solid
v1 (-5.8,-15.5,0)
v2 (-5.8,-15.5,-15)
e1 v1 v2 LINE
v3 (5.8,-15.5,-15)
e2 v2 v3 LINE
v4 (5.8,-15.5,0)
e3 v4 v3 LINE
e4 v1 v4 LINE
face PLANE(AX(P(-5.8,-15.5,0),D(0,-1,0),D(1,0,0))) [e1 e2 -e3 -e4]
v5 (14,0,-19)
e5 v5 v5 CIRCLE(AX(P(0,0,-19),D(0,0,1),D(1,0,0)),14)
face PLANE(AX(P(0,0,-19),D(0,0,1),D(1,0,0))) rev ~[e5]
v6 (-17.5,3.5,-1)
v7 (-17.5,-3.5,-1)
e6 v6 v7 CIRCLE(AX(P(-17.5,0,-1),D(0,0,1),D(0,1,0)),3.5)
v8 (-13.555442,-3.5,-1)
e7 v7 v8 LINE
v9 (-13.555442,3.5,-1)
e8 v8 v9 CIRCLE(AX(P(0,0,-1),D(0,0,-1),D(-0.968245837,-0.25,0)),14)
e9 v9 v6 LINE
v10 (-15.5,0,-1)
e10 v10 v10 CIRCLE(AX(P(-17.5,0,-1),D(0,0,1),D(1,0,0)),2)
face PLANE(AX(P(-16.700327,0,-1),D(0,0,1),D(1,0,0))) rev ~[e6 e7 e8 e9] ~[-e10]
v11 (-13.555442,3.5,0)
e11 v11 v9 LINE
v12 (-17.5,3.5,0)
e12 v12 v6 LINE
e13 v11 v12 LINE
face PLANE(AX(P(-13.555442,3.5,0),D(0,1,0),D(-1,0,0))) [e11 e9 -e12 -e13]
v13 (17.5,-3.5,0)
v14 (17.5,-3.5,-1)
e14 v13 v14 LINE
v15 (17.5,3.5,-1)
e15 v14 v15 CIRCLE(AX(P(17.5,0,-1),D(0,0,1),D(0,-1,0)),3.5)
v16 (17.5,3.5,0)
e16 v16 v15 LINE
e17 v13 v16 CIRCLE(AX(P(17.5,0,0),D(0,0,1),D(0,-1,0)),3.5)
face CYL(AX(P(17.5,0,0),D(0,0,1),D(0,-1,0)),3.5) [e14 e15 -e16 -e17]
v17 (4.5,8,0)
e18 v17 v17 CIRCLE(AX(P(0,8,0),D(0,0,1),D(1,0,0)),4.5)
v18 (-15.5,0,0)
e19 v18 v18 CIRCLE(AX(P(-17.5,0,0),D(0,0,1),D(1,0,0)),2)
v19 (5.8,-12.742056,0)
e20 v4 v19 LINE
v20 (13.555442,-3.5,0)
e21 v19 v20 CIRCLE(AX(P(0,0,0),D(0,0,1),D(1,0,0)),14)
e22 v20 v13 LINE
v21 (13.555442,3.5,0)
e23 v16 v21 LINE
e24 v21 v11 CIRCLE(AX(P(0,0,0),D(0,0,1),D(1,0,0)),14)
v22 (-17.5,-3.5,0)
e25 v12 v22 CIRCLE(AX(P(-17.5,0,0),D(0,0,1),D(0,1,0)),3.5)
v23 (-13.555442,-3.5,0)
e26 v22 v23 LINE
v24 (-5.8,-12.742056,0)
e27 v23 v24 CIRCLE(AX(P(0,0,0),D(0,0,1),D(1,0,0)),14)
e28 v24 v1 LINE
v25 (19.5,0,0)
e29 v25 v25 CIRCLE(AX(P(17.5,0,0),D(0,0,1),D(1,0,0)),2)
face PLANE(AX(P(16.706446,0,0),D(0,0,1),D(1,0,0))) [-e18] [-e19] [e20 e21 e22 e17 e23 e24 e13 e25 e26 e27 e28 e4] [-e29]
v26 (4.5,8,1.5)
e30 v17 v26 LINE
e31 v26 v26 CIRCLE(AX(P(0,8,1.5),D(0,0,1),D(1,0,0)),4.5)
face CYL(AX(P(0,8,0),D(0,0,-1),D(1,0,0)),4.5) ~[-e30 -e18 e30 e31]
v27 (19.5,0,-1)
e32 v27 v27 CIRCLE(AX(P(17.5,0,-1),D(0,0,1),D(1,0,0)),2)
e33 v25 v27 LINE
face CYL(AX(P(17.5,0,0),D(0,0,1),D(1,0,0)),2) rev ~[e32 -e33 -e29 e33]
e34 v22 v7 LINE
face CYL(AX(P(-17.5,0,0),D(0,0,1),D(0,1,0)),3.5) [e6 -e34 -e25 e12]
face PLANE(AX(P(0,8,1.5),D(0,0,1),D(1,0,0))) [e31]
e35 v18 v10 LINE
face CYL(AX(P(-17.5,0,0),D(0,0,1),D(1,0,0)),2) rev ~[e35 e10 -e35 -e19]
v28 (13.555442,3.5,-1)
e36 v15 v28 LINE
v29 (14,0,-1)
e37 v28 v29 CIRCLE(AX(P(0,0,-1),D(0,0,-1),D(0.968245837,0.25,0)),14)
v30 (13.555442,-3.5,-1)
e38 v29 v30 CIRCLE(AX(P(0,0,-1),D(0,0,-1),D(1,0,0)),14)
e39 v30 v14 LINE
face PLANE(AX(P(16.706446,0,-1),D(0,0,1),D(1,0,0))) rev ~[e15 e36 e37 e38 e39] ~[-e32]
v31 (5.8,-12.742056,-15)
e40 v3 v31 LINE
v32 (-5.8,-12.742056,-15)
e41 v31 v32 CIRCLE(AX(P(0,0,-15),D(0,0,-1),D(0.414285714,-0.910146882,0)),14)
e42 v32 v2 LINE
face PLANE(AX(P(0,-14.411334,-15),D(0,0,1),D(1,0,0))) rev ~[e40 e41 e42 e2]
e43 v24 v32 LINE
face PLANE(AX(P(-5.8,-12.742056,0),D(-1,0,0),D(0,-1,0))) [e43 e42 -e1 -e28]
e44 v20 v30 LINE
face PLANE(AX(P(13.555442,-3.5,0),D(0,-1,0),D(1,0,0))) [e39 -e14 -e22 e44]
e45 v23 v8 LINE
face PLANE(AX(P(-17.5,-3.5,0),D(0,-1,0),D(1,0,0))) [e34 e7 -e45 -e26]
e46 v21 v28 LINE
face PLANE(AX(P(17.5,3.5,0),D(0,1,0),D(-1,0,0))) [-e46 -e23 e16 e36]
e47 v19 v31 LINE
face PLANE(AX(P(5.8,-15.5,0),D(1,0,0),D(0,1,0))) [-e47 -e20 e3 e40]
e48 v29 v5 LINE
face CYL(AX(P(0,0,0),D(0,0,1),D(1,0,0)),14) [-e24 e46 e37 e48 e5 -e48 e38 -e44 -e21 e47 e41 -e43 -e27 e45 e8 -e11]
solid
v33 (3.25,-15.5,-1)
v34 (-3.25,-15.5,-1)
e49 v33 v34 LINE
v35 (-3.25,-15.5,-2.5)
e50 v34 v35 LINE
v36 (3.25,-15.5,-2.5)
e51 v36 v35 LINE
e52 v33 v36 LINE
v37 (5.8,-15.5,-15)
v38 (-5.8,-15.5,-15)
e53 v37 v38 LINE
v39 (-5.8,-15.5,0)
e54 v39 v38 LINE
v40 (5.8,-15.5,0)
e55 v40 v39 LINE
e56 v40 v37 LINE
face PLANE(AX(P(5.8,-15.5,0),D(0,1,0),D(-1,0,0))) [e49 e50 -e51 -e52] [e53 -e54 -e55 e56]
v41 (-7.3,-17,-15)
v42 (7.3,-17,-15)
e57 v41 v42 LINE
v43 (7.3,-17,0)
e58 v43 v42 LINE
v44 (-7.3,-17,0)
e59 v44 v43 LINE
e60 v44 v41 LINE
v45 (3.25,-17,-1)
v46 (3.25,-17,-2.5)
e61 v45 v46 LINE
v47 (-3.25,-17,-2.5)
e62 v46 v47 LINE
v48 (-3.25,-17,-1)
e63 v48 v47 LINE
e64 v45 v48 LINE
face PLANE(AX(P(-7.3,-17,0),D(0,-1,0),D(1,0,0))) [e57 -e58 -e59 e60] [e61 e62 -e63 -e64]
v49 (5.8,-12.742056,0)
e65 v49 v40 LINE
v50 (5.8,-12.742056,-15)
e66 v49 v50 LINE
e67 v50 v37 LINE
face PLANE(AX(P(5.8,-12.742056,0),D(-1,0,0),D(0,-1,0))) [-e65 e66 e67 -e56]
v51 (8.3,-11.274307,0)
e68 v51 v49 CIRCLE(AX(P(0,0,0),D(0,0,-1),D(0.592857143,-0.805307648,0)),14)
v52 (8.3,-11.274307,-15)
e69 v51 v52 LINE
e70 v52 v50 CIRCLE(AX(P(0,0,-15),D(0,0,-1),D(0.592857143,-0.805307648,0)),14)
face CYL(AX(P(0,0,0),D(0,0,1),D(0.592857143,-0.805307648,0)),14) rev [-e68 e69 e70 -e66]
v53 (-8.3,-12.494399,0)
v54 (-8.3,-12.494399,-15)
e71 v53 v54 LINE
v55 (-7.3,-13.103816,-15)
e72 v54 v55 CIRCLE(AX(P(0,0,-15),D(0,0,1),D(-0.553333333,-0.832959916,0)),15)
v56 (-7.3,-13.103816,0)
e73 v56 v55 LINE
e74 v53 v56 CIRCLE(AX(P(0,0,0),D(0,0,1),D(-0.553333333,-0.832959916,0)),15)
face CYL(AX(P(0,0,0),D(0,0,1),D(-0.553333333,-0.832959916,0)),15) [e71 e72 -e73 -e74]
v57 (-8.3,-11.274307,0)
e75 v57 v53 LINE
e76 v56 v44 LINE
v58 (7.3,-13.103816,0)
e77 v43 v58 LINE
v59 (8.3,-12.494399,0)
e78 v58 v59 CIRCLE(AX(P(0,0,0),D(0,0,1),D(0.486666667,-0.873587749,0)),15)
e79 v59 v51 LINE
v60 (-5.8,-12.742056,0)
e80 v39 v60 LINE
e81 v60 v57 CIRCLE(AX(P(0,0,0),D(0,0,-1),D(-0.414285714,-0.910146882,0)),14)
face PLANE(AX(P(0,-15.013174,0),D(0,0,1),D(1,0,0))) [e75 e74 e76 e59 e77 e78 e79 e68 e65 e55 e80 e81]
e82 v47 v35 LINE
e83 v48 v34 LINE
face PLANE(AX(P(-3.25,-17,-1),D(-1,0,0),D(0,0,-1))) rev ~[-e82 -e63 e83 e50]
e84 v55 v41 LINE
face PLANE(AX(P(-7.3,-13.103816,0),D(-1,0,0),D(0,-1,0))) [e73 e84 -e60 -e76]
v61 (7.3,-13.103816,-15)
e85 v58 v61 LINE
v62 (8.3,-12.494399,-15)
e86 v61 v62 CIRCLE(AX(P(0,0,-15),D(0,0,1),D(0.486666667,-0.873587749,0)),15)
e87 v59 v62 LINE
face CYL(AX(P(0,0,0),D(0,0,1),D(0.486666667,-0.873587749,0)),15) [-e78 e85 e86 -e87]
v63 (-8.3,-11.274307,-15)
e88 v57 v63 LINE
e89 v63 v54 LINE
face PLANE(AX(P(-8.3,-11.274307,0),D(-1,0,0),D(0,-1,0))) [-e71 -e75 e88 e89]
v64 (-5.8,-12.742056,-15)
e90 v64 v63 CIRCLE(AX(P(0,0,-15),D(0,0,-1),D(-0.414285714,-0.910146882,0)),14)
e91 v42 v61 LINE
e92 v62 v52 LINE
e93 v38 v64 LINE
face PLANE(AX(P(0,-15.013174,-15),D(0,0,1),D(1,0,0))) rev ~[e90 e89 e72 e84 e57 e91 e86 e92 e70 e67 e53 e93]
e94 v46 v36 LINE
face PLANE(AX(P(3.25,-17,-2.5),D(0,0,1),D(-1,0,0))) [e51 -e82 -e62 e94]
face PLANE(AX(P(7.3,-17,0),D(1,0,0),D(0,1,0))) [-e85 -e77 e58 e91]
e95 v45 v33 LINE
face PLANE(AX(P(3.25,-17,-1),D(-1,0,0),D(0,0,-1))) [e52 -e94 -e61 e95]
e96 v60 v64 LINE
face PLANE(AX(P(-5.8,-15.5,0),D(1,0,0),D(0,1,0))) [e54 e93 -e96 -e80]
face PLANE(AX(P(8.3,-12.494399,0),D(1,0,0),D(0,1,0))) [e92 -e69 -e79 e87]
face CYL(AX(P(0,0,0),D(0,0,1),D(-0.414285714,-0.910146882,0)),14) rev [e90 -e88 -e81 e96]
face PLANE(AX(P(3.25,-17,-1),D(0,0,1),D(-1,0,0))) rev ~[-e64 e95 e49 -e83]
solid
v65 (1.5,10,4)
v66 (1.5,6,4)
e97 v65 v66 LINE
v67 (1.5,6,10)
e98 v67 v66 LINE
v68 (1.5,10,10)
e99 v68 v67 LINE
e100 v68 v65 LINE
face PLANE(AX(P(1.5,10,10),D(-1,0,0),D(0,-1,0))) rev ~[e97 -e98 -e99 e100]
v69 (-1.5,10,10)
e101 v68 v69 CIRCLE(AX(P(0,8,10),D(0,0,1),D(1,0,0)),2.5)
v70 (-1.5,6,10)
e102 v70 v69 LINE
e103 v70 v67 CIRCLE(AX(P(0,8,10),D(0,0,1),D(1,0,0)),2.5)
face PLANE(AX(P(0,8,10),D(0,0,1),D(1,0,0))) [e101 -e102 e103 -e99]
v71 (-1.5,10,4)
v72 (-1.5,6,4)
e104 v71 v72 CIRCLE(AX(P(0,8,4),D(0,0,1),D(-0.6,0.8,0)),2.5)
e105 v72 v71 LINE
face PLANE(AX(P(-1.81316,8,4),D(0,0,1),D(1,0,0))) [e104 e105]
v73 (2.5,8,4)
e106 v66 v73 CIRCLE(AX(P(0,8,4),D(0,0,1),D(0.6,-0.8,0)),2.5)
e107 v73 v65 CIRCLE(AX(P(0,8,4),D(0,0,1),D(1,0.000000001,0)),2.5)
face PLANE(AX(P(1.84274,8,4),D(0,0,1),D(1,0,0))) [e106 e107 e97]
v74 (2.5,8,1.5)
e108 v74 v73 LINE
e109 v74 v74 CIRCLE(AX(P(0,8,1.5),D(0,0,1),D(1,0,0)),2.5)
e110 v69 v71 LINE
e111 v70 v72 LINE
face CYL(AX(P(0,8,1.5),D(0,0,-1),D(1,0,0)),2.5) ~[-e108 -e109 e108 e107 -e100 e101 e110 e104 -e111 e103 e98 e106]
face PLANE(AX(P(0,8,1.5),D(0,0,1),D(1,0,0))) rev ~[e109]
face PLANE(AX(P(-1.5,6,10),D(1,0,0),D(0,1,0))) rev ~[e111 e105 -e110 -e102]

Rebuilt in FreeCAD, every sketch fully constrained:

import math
import FreeCAD as App
import Part
import Sketcher
from FreeCAD import Vector


def add_polygon(sketch, points):
    """Adds a closed chain of lines whose ends are joined by coincident constraints."""
    first, n = sketch.GeometryCount, len(points)
    for a, b in zip(points, points[1:] + points[:1]):
        sketch.addGeometry(Part.LineSegment(App.Vector(*a, 0), App.Vector(*b, 0)), False)
    for i in range(n):
        sketch.addConstraint(Sketcher.Constraint("Coincident", first + i, 2, first + (i + 1) % n, 1))

doc = App.newDocument("Part")
body = doc.addObject("PartDesign::Body", "Body")

# Sketch on XY plane
sketch1 = body.newObject("Sketcher::SketchObject", "Sketch")
sketch1.AttachmentSupport = (doc.getObject("XY_Plane"), [""])
sketch1.MapMode = "FlatFace"
sketch1.addGeometry(Part.Circle(Vector(0, 0, 0), Vector(0, 0, 1), 14), False)
sketch1.addConstraint(Sketcher.Constraint("Coincident", 0, 3, -1, 1))
sketch1.addConstraint(Sketcher.Constraint("Diameter", 0, 28.0))
pad1 = body.newObject("PartDesign::Pad", "Pad")
pad1.Profile = sketch1
pad1.Length = 19
pad1.Reversed = True

# Sketch on XY plane
sketch2 = body.newObject("Sketcher::SketchObject", "Sketch001")
sketch2.AttachmentSupport = (doc.getObject("XY_Plane"), [""])
sketch2.MapMode = "FlatFace"
sketch2.addGeometry(Part.LineSegment(Vector(-13.6, 3.5, 0), Vector(-17.5, 3.5, 0)), False)
sketch2.addGeometry(Part.ArcOfCircle(Part.Circle(Vector(-17.5, 0, 0), Vector(0, 0, 1), 3.5), math.radians(90), math.radians(270)), False)
sketch2.addGeometry(Part.LineSegment(Vector(-17.5, -3.5, 0), Vector(-13.6, -3.5, 0)), False)
sketch2.addGeometry(Part.ArcOfCircle(Part.Circle(Vector(0, 0, 0), Vector(0, 0, 1), 14), math.radians(166), math.radians(194)), False)
sketch2.addGeometry(Part.Circle(Vector(-17.5, 0, 0), Vector(0, 0, 1), 2), False)
sketch2.addGeometry(Part.LineSegment(Vector(17.5, 3.5, 0), Vector(13.6, 3.5, 0)), False)
sketch2.addGeometry(Part.ArcOfCircle(Part.Circle(Vector(0, 0, 0), Vector(0, 0, 1), 14), math.radians(0), math.radians(14.48)), False)
sketch2.addGeometry(Part.ArcOfCircle(Part.Circle(Vector(0, 0, 0), Vector(0, 0, 1), 14), math.radians(-14.48), math.radians(0)), False)
sketch2.addGeometry(Part.LineSegment(Vector(13.6, -3.5, 0), Vector(17.5, -3.5, 0)), False)
sketch2.addGeometry(Part.ArcOfCircle(Part.Circle(Vector(17.5, 0, 0), Vector(0, 0, 1), 3.5), math.radians(-90), math.radians(90)), False)
sketch2.addGeometry(Part.Circle(Vector(17.5, 0, 0), Vector(0, 0, 1), 2), False)
sketch2.addConstraint(Sketcher.Constraint("Tangent", 0, 2, 1, 1))
sketch2.addConstraint(Sketcher.Constraint("Tangent", 1, 2, 2, 1))
sketch2.addConstraint(Sketcher.Constraint("Coincident", 2, 2, 3, 2))
sketch2.addConstraint(Sketcher.Constraint("Coincident", 3, 1, 0, 1))
sketch2.addConstraint(Sketcher.Constraint("Coincident", 5, 2, 6, 2))
sketch2.addConstraint(Sketcher.Constraint("Tangent", 6, 1, 7, 2))
sketch2.addConstraint(Sketcher.Constraint("Coincident", 7, 1, 8, 1))
sketch2.addConstraint(Sketcher.Constraint("Tangent", 8, 2, 9, 1))
sketch2.addConstraint(Sketcher.Constraint("Tangent", 9, 2, 5, 1))
sketch2.addConstraint(Sketcher.Constraint("Horizontal", 0))
sketch2.addConstraint(Sketcher.Constraint("Horizontal", 2))
sketch2.addConstraint(Sketcher.Constraint("Horizontal", 5))
sketch2.addConstraint(Sketcher.Constraint("Horizontal", 8))
sketch2.addConstraint(Sketcher.Constraint("Coincident", 3, 3, -1, 1))
sketch2.addConstraint(Sketcher.Constraint("Coincident", 6, 3, -1, 1))
sketch2.addConstraint(Sketcher.Constraint("Coincident", 4, 3, 1, 3))
sketch2.addConstraint(Sketcher.Constraint("Coincident", 10, 3, 9, 3))
sketch2.addConstraint(Sketcher.Constraint("Equal", 3, 6))
sketch2.addConstraint(Sketcher.Constraint("Equal", 6, 7))
sketch2.addConstraint(Sketcher.Constraint("Equal", 1, 9))
sketch2.addConstraint(Sketcher.Constraint("Equal", 4, 10))
sketch2.addConstraint(Sketcher.Constraint("Symmetric", 1, 3, 9, 3, -1, 1))
sketch2.addConstraint(Sketcher.Constraint("PointOnObject", 1, 3, -1))
sketch2.addConstraint(Sketcher.Constraint("PointOnObject", 6, 1, -1))
sketch2.addConstraint(Sketcher.Constraint("Diameter", 4, 4.0))
sketch2.addConstraint(Sketcher.Constraint("Radius", 3, 14.0))
sketch2.addConstraint(Sketcher.Constraint("Radius", 1, 3.5))
sketch2.addConstraint(Sketcher.Constraint("DistanceX", 1, 3, 9, 3, 35.0))
pad2 = body.newObject("PartDesign::Pad", "Pad001")
pad2.Profile = sketch2
pad2.Length = 1
pad2.Reversed = True

# Sketch on XY plane
sketch3 = body.newObject("Sketcher::SketchObject", "Sketch002")
sketch3.AttachmentSupport = (doc.getObject("XY_Plane"), [""])
sketch3.MapMode = "FlatFace"
sketch3.addGeometry(Part.Circle(Vector(0, 8, 0), Vector(0, 0, 1), 4.5), False)
sketch3.addConstraint(Sketcher.Constraint("PointOnObject", 0, 3, -2))
sketch3.addConstraint(Sketcher.Constraint("Diameter", 0, 9.0))
sketch3.addConstraint(Sketcher.Constraint("DistanceY", -1, 1, 0, 3, 8.0))
pad3 = body.newObject("PartDesign::Pad", "Pad002")
pad3.Profile = sketch3
pad3.Length = 1.5

# Sketch on XY plane
sketch4 = body.newObject("Sketcher::SketchObject", "Sketch003")
sketch4.AttachmentSupport = (doc.getObject("XY_Plane"), [""])
sketch4.MapMode = "FlatFace"
sketch4.addGeometry(Part.LineSegment(Vector(5.8, -15.5, 0), Vector(5.8, -12.7, 0)), False)
sketch4.addGeometry(Part.ArcOfCircle(Part.Circle(Vector(0, 0, 0), Vector(0, 0, 1), 14), math.radians(-114), math.radians(-66)), False)
sketch4.addGeometry(Part.LineSegment(Vector(-5.8, -12.7, 0), Vector(-5.8, -15.5, 0)), False)
sketch4.addGeometry(Part.LineSegment(Vector(-5.8, -15.5, 0), Vector(5.8, -15.5, 0)), False)
sketch4.addConstraint(Sketcher.Constraint("Coincident", 0, 2, 1, 2))
sketch4.addConstraint(Sketcher.Constraint("Coincident", 1, 1, 2, 1))
sketch4.addConstraint(Sketcher.Constraint("Coincident", 2, 2, 3, 1))
sketch4.addConstraint(Sketcher.Constraint("Coincident", 3, 2, 0, 1))
sketch4.addConstraint(Sketcher.Constraint("Vertical", 0))
sketch4.addConstraint(Sketcher.Constraint("Vertical", 2))
sketch4.addConstraint(Sketcher.Constraint("Horizontal", 3))
sketch4.addConstraint(Sketcher.Constraint("Coincident", 1, 3, -1, 1))
sketch4.addConstraint(Sketcher.Constraint("Horizontal", 0, 2, 1, 1))
sketch4.addConstraint(Sketcher.Constraint("Radius", 1, 14.0))
sketch4.addConstraint(Sketcher.Constraint("DistanceX", 3, 1, 3, 2, 11.6))
sketch4.addConstraint(Sketcher.Constraint("DistanceY", 2, 2, -1, 1, 15.5))
pad4 = body.newObject("PartDesign::Pad", "Pad003")
pad4.Profile = sketch4
pad4.Length = 15
pad4.Reversed = True
body2 = doc.addObject("PartDesign::Body", "Body001")

# Sketch on XY plane
sketch5 = body2.newObject("Sketcher::SketchObject", "Sketch004")
sketch5.AttachmentSupport = (doc.getObject("XY_Plane001"), [""])
sketch5.MapMode = "FlatFace"
sketch5.AttachmentOffset = App.Placement(Vector(0, 0, 1.5), App.Rotation())
sketch5.addGeometry(Part.Circle(Vector(0, 8, 0), Vector(0, 0, 1), 2.5), False)
sketch5.addConstraint(Sketcher.Constraint("PointOnObject", 0, 3, -2))
sketch5.addConstraint(Sketcher.Constraint("Diameter", 0, 5.0))
sketch5.addConstraint(Sketcher.Constraint("DistanceY", -1, 1, 0, 3, 8.0))
pad5 = body2.newObject("PartDesign::Pad", "Pad004")
pad5.Profile = sketch5
pad5.Length = 8.5

# Sketch on XY plane
sketch6 = body2.newObject("Sketcher::SketchObject", "Sketch005")
sketch6.AttachmentSupport = (doc.getObject("XY_Plane001"), [""])
sketch6.MapMode = "FlatFace"
sketch6.AttachmentOffset = App.Placement(Vector(0, 0, 10), App.Rotation())
sketch6.addGeometry(Part.LineSegment(Vector(-1.5, 6, 0), Vector(-1.5, 10, 0)), False)
sketch6.addGeometry(Part.ArcOfCircle(Part.Circle(Vector(0, 8, 0), Vector(0, 0, 1), 2.5), math.radians(127), math.radians(233)), False)
sketch6.addGeometry(Part.ArcOfCircle(Part.Circle(Vector(0, 8, 0), Vector(0, 0, 1), 2.5), math.radians(0), math.radians(53)), False)
sketch6.addGeometry(Part.LineSegment(Vector(1.5, 10, 0), Vector(1.5, 6, 0)), False)
sketch6.addGeometry(Part.ArcOfCircle(Part.Circle(Vector(0, 8, 0), Vector(0, 0, 1), 2.5), math.radians(-53), math.radians(0)), False)
sketch6.addConstraint(Sketcher.Constraint("Coincident", 0, 1, 1, 2))
sketch6.addConstraint(Sketcher.Constraint("Coincident", 1, 1, 0, 2))
sketch6.addConstraint(Sketcher.Constraint("Coincident", 2, 2, 3, 1))
sketch6.addConstraint(Sketcher.Constraint("Coincident", 3, 2, 4, 1))
sketch6.addConstraint(Sketcher.Constraint("Tangent", 4, 2, 2, 1))
sketch6.addConstraint(Sketcher.Constraint("Vertical", 0))
sketch6.addConstraint(Sketcher.Constraint("Vertical", 3))
sketch6.addConstraint(Sketcher.Constraint("Coincident", 2, 3, 1, 3))
sketch6.addConstraint(Sketcher.Constraint("Equal", 1, 2))
sketch6.addConstraint(Sketcher.Constraint("Equal", 2, 4))
sketch6.addConstraint(Sketcher.Constraint("Symmetric", 1, 1, 2, 2, -2))
sketch6.addConstraint(Sketcher.Constraint("Horizontal", 2, 3, 4, 2))
sketch6.addConstraint(Sketcher.Constraint("Radius", 1, 2.5))
sketch6.addConstraint(Sketcher.Constraint("DistanceY", 0, 1, 0, 2, 4.0))
sketch6.addConstraint(Sketcher.Constraint("DistanceY", -1, 1, 1, 3, 8.0))
pocket1 = body2.newObject("PartDesign::Pocket", "Pocket")
pocket1.Profile = sketch6
pocket1.Length = 6
body3 = doc.addObject("PartDesign::Body", "Body002")

# Sketch on XY plane
sketch7 = body3.newObject("Sketcher::SketchObject", "Sketch006")
sketch7.AttachmentSupport = (doc.getObject("XY_Plane002"), [""])
sketch7.MapMode = "FlatFace"
sketch7.addGeometry(Part.LineSegment(Vector(-7.3, -13.1, 0), Vector(-7.3, -17, 0)), False)
sketch7.addGeometry(Part.LineSegment(Vector(-7.3, -17, 0), Vector(7.3, -17, 0)), False)
sketch7.addGeometry(Part.LineSegment(Vector(7.3, -17, 0), Vector(7.3, -13.1, 0)), False)
sketch7.addGeometry(Part.ArcOfCircle(Part.Circle(Vector(0, 0, 0), Vector(0, 0, 1), 15), math.radians(-60.88), math.radians(-56.4)), False)
sketch7.addGeometry(Part.LineSegment(Vector(8.3, -12.5, 0), Vector(8.3, -11.3, 0)), False)
sketch7.addGeometry(Part.ArcOfCircle(Part.Circle(Vector(0, 0, 0), Vector(0, 0, 1), 14), math.radians(-65.53), math.radians(-53.64)), False)
sketch7.addGeometry(Part.LineSegment(Vector(5.8, -12.7, 0), Vector(5.8, -15.5, 0)), False)
sketch7.addGeometry(Part.LineSegment(Vector(5.8, -15.5, 0), Vector(-5.8, -15.5, 0)), False)
sketch7.addGeometry(Part.LineSegment(Vector(-5.8, -15.5, 0), Vector(-5.8, -12.7, 0)), False)
sketch7.addGeometry(Part.ArcOfCircle(Part.Circle(Vector(0, 0, 0), Vector(0, 0, 1), 14), math.radians(-126.36), math.radians(-114.47)), False)
sketch7.addGeometry(Part.LineSegment(Vector(-8.3, -11.3, 0), Vector(-8.3, -12.5, 0)), False)
sketch7.addGeometry(Part.ArcOfCircle(Part.Circle(Vector(0, 0, 0), Vector(0, 0, 1), 15), math.radians(-123.6), math.radians(-119.12)), False)
sketch7.addConstraint(Sketcher.Constraint("Coincident", 0, 2, 1, 1))
sketch7.addConstraint(Sketcher.Constraint("Coincident", 1, 2, 2, 1))
sketch7.addConstraint(Sketcher.Constraint("Coincident", 2, 2, 3, 1))
sketch7.addConstraint(Sketcher.Constraint("Coincident", 3, 2, 4, 1))
sketch7.addConstraint(Sketcher.Constraint("Coincident", 4, 2, 5, 2))
sketch7.addConstraint(Sketcher.Constraint("Coincident", 5, 1, 6, 1))
sketch7.addConstraint(Sketcher.Constraint("Coincident", 6, 2, 7, 1))
sketch7.addConstraint(Sketcher.Constraint("Coincident", 7, 2, 8, 1))
sketch7.addConstraint(Sketcher.Constraint("Coincident", 8, 2, 9, 2))
sketch7.addConstraint(Sketcher.Constraint("Coincident", 9, 1, 10, 1))
sketch7.addConstraint(Sketcher.Constraint("Coincident", 10, 2, 11, 1))
sketch7.addConstraint(Sketcher.Constraint("Coincident", 11, 2, 0, 1))
sketch7.addConstraint(Sketcher.Constraint("Vertical", 0))
sketch7.addConstraint(Sketcher.Constraint("Horizontal", 1))
sketch7.addConstraint(Sketcher.Constraint("Vertical", 2))
sketch7.addConstraint(Sketcher.Constraint("Vertical", 4))
sketch7.addConstraint(Sketcher.Constraint("Vertical", 6))
sketch7.addConstraint(Sketcher.Constraint("Horizontal", 7))
sketch7.addConstraint(Sketcher.Constraint("Vertical", 8))
sketch7.addConstraint(Sketcher.Constraint("Vertical", 10))
sketch7.addConstraint(Sketcher.Constraint("Coincident", 3, 3, -1, 1))
sketch7.addConstraint(Sketcher.Constraint("Coincident", 5, 3, -1, 1))
sketch7.addConstraint(Sketcher.Constraint("Coincident", 9, 3, -1, 1))
sketch7.addConstraint(Sketcher.Constraint("Coincident", 11, 3, -1, 1))
sketch7.addConstraint(Sketcher.Constraint("Equal", 5, 9))
sketch7.addConstraint(Sketcher.Constraint("Equal", 3, 11))
sketch7.addConstraint(Sketcher.Constraint("Horizontal", 5, 1, 8, 2))
sketch7.addConstraint(Sketcher.Constraint("Horizontal", 4, 2, 9, 1))
sketch7.addConstraint(Sketcher.Constraint("Horizontal", 2, 2, 11, 2))
sketch7.addConstraint(Sketcher.Constraint("Radius", 3, 15.0))
sketch7.addConstraint(Sketcher.Constraint("Radius", 5, 14.0))
sketch7.addConstraint(Sketcher.Constraint("DistanceX", 1, 1, 1, 2, 14.6))
sketch7.addConstraint(Sketcher.Constraint("DistanceX", 7, 2, 7, 1, 11.6))
sketch7.addConstraint(Sketcher.Constraint("DistanceY", 0, 2, -1, 1, 17.0))
sketch7.addConstraint(Sketcher.Constraint("DistanceX", 2, 2, 3, 2, 1.0))
sketch7.addConstraint(Sketcher.Constraint("DistanceY", 6, 2, -1, 1, 15.5))
pad6 = body3.newObject("PartDesign::Pad", "Pad005")
pad6.Profile = sketch7
pad6.Length = 15
pad6.Reversed = True

# Sketch on XZ plane
sketch8 = body3.newObject("Sketcher::SketchObject", "Sketch007")
sketch8.AttachmentSupport = (doc.getObject("XZ_Plane002"), [""])
sketch8.MapMode = "FlatFace"
sketch8.AttachmentOffset = App.Placement(Vector(0, 0, 17), App.Rotation())
add_polygon(sketch8, [(3.2, -2.5), (3.2, -1), (-3.2, -1), (-3.2, -2.5)])  # lines 0-3
sketch8.addConstraint(Sketcher.Constraint("Vertical", 0))
sketch8.addConstraint(Sketcher.Constraint("Horizontal", 1))
sketch8.addConstraint(Sketcher.Constraint("Vertical", 2))
sketch8.addConstraint(Sketcher.Constraint("Horizontal", 3))
sketch8.addConstraint(Sketcher.Constraint("DistanceX", 1, 2, 1, 1, 6.5))
sketch8.addConstraint(Sketcher.Constraint("DistanceY", 0, 1, 0, 2, 1.5))
sketch8.addConstraint(Sketcher.Constraint("DistanceY", 0, 2, -1, 1, 1.0))
sketch8.addConstraint(Sketcher.Constraint("DistanceX", -1, 1, 0, 2, 3.25))
pocket2 = body3.newObject("PartDesign::Pocket", "Pocket001")
pocket2.Profile = sketch8
pocket2.Length = 1.5

doc.recompute()
